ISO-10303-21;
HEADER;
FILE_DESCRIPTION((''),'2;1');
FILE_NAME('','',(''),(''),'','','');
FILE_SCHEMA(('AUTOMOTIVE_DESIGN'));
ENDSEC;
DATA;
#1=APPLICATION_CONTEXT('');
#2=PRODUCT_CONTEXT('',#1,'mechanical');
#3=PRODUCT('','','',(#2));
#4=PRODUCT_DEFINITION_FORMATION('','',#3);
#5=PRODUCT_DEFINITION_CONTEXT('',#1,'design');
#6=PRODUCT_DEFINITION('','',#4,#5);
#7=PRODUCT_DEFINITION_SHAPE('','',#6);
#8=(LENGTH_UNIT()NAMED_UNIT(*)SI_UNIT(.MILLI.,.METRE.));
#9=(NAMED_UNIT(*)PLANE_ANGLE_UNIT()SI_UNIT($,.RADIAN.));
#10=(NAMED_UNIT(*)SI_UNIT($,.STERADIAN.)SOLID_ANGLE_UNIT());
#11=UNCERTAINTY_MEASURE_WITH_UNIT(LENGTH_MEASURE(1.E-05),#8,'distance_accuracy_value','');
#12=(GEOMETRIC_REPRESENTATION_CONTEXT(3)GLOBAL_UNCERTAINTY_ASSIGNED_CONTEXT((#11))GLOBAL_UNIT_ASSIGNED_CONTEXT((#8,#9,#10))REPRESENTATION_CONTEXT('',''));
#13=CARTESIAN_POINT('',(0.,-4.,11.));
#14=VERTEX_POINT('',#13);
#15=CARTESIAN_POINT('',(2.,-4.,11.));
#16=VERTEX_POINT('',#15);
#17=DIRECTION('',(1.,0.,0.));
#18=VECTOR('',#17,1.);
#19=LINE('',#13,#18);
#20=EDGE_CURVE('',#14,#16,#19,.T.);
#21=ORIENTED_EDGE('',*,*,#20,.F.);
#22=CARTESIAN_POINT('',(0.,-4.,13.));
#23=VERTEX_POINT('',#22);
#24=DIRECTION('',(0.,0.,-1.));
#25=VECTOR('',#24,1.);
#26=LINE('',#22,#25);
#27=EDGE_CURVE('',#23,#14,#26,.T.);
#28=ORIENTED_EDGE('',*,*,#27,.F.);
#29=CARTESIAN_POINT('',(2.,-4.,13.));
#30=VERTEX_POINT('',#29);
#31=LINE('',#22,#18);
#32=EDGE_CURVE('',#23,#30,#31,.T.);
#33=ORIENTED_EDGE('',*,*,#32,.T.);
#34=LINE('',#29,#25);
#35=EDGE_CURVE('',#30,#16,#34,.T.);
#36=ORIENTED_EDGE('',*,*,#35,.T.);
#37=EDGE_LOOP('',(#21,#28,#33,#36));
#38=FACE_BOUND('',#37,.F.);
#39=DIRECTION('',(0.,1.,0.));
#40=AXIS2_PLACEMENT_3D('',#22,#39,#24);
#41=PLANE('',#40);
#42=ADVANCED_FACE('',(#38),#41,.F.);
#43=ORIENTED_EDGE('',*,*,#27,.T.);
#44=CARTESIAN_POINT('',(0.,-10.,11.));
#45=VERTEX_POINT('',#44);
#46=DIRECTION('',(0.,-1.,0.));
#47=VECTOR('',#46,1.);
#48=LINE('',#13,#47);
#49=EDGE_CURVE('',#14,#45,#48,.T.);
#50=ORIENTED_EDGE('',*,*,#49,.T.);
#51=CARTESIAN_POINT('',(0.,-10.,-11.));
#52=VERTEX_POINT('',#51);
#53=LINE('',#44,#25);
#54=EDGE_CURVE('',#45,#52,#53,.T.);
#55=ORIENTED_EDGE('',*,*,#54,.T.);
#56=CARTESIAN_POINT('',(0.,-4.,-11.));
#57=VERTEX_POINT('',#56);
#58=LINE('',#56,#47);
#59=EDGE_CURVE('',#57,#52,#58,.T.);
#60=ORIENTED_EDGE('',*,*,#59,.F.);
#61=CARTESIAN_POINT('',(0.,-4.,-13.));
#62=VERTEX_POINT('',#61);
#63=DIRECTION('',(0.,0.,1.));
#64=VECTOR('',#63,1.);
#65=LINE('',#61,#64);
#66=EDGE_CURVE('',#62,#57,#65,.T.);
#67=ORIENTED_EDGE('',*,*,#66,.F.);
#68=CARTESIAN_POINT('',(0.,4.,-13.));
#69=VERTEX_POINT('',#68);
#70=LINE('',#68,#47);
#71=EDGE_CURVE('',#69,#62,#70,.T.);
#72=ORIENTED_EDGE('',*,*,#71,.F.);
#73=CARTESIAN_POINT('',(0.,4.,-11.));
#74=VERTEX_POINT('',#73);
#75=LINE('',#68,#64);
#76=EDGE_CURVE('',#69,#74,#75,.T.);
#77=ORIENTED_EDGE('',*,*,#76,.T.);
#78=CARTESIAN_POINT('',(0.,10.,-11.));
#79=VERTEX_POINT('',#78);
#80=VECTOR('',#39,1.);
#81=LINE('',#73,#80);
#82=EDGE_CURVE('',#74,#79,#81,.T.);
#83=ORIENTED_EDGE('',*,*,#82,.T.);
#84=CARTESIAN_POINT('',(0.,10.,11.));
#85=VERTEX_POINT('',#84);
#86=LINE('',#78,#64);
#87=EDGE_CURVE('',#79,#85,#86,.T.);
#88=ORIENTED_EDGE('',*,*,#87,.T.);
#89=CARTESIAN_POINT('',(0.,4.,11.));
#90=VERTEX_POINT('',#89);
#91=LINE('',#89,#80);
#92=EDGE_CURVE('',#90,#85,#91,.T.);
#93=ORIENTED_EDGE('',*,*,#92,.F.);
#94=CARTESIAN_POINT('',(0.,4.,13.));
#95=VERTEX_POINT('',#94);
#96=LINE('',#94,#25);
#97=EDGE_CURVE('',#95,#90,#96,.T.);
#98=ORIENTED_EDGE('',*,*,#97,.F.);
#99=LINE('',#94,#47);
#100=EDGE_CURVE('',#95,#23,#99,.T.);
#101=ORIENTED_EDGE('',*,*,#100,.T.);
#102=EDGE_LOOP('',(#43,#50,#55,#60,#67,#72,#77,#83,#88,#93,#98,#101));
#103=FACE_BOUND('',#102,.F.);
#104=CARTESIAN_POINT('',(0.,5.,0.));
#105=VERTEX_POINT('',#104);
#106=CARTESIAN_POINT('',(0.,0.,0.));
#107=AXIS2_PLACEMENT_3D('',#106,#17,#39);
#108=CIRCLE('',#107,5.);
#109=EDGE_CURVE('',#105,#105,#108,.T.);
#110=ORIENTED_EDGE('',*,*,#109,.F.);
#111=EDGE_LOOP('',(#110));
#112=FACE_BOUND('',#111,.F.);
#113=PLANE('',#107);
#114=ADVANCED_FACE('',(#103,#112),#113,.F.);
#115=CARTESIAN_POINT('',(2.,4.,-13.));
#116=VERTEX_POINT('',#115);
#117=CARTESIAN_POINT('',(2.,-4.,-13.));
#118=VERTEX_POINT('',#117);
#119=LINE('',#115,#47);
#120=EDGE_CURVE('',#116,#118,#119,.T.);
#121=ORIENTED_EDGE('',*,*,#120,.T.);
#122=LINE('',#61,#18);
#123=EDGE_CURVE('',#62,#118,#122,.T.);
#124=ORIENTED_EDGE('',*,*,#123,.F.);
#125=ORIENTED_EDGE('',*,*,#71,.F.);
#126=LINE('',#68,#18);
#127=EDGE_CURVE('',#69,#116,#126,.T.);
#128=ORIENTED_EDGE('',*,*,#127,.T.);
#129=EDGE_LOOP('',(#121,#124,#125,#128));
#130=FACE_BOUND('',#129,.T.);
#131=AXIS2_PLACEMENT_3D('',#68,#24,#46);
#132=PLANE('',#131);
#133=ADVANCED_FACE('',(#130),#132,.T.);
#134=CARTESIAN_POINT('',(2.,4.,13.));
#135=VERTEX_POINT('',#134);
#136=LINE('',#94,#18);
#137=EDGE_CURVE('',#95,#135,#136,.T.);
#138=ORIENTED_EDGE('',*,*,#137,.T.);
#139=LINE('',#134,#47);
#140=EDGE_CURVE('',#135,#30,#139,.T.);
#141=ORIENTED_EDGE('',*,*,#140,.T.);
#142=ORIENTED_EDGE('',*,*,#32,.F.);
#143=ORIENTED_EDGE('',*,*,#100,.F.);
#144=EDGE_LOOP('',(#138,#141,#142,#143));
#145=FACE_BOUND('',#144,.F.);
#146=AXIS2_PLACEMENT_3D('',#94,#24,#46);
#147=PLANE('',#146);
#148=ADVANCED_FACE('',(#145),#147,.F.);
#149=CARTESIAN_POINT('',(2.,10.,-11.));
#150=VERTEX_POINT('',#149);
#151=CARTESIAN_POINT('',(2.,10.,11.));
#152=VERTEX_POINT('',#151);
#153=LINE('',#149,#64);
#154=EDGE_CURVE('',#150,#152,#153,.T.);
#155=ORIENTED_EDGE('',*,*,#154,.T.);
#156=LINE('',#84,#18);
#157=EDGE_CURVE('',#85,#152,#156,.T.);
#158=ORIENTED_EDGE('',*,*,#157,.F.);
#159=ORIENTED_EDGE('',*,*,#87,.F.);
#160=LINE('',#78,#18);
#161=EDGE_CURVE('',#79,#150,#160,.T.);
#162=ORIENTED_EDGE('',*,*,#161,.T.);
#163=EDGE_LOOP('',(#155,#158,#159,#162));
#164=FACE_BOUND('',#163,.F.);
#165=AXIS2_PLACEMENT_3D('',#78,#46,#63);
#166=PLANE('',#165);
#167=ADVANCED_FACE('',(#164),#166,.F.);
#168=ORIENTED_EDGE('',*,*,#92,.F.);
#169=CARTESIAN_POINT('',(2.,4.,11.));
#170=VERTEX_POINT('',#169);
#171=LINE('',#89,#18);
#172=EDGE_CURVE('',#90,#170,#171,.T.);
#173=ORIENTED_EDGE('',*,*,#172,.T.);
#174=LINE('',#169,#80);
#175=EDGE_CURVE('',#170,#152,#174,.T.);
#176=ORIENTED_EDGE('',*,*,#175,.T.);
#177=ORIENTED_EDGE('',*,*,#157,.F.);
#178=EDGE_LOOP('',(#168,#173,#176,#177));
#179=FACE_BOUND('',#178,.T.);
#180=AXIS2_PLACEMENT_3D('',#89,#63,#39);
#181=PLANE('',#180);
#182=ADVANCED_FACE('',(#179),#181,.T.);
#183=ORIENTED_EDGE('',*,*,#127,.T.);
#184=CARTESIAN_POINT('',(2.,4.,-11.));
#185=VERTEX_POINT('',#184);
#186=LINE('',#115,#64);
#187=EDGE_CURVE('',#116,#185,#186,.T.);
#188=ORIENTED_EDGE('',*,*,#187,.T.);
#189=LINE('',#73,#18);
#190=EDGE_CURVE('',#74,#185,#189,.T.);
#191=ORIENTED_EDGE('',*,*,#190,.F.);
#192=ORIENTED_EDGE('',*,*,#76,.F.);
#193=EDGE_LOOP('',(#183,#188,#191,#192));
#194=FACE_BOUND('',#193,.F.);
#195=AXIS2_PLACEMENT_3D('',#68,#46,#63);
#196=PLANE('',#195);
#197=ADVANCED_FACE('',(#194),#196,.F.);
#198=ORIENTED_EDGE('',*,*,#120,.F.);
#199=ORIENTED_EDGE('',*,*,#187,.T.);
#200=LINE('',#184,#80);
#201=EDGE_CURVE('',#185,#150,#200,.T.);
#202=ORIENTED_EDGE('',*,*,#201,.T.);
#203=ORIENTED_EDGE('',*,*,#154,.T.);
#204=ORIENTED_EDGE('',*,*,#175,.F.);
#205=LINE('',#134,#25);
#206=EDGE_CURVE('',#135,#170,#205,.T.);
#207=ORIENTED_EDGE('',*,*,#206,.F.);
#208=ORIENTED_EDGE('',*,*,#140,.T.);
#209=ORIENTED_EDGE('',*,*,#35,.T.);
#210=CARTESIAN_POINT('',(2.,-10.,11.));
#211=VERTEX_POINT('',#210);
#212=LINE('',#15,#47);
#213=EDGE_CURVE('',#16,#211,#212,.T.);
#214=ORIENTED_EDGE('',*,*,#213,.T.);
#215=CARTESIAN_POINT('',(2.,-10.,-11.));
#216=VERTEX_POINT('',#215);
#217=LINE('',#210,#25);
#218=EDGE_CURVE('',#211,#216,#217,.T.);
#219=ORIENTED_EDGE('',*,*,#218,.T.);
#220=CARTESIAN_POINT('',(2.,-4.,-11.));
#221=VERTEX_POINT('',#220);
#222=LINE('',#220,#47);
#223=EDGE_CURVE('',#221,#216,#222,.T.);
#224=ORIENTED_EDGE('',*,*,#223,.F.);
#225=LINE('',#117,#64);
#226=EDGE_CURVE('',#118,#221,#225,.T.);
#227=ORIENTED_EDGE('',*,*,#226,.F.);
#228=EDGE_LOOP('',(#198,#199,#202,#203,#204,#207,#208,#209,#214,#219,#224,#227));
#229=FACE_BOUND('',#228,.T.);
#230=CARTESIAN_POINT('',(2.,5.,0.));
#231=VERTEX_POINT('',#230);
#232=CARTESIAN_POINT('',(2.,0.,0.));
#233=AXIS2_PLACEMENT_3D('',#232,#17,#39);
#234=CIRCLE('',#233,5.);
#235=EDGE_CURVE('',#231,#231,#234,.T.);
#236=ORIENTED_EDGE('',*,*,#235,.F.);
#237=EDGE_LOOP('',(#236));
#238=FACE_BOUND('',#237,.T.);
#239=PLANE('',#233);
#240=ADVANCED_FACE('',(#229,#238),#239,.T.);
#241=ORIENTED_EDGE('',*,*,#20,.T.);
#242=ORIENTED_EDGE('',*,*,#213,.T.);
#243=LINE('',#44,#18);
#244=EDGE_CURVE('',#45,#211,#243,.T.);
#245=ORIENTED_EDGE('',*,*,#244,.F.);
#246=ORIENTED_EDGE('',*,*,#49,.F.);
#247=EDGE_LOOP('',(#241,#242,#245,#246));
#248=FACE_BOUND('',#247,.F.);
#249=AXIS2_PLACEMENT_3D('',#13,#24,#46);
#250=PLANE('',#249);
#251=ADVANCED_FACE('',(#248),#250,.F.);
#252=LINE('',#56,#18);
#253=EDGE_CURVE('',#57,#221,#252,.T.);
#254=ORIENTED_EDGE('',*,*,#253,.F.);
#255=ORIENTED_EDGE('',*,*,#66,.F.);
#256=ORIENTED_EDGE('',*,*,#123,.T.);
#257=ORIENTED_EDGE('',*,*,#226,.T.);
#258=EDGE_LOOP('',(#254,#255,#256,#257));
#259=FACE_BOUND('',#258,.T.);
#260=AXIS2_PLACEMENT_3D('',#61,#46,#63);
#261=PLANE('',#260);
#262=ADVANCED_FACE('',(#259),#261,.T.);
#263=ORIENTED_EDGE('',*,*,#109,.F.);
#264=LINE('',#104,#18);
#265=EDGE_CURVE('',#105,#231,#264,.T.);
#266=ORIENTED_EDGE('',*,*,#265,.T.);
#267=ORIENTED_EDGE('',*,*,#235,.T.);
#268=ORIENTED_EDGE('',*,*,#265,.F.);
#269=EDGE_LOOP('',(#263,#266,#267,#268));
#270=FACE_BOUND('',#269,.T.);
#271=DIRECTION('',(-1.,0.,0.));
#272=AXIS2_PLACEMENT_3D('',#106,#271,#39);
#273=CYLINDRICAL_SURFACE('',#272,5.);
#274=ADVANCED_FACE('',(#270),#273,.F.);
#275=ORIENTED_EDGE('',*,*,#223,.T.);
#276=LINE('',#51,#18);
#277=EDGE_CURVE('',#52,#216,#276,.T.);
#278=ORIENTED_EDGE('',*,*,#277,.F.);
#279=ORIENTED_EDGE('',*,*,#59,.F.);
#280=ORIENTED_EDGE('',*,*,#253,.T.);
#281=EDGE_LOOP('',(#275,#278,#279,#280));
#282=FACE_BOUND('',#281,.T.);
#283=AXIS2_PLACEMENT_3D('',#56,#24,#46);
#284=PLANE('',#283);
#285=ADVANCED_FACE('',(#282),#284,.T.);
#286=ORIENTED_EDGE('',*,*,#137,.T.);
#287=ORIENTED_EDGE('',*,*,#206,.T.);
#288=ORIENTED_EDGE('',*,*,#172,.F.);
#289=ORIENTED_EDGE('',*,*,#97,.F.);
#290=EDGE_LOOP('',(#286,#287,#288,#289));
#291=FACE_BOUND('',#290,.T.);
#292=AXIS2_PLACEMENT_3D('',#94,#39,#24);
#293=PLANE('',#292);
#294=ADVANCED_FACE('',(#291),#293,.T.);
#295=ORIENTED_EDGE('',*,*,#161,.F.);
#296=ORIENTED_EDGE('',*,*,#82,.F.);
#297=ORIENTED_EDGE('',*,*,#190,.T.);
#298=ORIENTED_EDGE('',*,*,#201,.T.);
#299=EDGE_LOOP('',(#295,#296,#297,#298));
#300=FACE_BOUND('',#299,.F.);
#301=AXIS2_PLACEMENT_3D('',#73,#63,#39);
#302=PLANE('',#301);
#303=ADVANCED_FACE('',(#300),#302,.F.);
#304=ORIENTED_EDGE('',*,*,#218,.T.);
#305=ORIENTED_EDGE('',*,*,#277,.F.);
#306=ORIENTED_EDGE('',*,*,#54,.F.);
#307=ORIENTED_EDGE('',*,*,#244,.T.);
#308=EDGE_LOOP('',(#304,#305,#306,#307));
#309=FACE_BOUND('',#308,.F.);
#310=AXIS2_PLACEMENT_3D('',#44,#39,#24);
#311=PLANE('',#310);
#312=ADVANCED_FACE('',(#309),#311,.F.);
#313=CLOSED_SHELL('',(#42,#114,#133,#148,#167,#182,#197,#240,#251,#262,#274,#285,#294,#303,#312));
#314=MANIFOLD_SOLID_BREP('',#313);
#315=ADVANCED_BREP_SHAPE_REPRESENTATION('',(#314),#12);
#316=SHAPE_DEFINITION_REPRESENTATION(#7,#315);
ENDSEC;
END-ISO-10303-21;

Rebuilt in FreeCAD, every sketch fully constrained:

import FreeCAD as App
import Part
import Sketcher
from FreeCAD import Vector
Q = App.Units.Quantity


def add_polygon(sketch, points):
    """Adds a closed chain of lines whose ends are joined by coincident constraints."""
    first, n = sketch.GeometryCount, len(points)
    for a, b in zip(points, points[1:] + points[:1]):
        sketch.addGeometry(Part.LineSegment(App.Vector(*a, 0), App.Vector(*b, 0)), False)
    for i in range(n):
        sketch.addConstraint(Sketcher.Constraint("Coincident", first + i, 2, first + (i + 1) % n, 1))

doc = App.newDocument("Part")
body = doc.addObject("PartDesign::Body", "Body")

# Sketch on YZ plane
sketch1 = body.newObject("Sketcher::SketchObject", "Sketch")
sketch1.AttachmentSupport = (doc.getObject("YZ_Plane"), [""])
sketch1.MapMode = "FlatFace"
add_polygon(sketch1, [(4, -11), (10, -11), (10, 11), (4, 11), (4, 13), (-4, 13), (-4, 11), (-10, 11), (-10, -11), (-4, -11), (-4, -13), (4, -13)])  # lines 0-11
sketch1.addGeometry(Part.Circle(Vector(0, 0, 0), Vector(0, 0, 1), 5), False)  # 12
sketch1.addConstraint(Sketcher.Constraint("Horizontal", 0))
sketch1.addConstraint(Sketcher.Constraint("Vertical", 1))
sketch1.addConstraint(Sketcher.Constraint("Horizontal", 2))
sketch1.addConstraint(Sketcher.Constraint("Vertical", 3))
sketch1.addConstraint(Sketcher.Constraint("Horizontal", 4))
sketch1.addConstraint(Sketcher.Constraint("Vertical", 5))
sketch1.addConstraint(Sketcher.Constraint("Horizontal", 6))
sketch1.addConstraint(Sketcher.Constraint("Vertical", 7))
sketch1.addConstraint(Sketcher.Constraint("Horizontal", 8))
sketch1.addConstraint(Sketcher.Constraint("Vertical", 9))
sketch1.addConstraint(Sketcher.Constraint("Horizontal", 10))
sketch1.addConstraint(Sketcher.Constraint("Vertical", 11))
sketch1.addConstraint(Sketcher.Constraint("Coincident", 12, 3, -1, 1))
sketch1.addConstraint(Sketcher.Constraint("Symmetric", 0, 2, 6, 2, -1, 1))
sketch1.addConstraint(Sketcher.Constraint("Symmetric", 2, 2, 8, 2, -1, 1))
sketch1.addConstraint(Sketcher.Constraint("Symmetric", 4, 2, 10, 2, -1, 1))
sketch1.addConstraint(Sketcher.Constraint("Symmetric", 2, 2, 5, 2, -2))
sketch1.addConstraint(Sketcher.Constraint("Diameter", 12, Q("10 mm")))
sketch1.addConstraint(Sketcher.Constraint("DistanceX", 0, 1, 0, 2, Q("6 mm")))
sketch1.addConstraint(Sketcher.Constraint("DistanceX", 4, 2, 4, 1, Q("8 mm")))
sketch1.addConstraint(Sketcher.Constraint("DistanceY", 1, 1, 1, 2, Q("22 mm")))
sketch1.addConstraint(Sketcher.Constraint("DistanceY", 3, 1, 3, 2, Q("2 mm")))
pad1 = body.newObject("PartDesign::Pad", "Pad")
pad1.Profile = sketch1
pad1.Length = 2

doc.recompute()
